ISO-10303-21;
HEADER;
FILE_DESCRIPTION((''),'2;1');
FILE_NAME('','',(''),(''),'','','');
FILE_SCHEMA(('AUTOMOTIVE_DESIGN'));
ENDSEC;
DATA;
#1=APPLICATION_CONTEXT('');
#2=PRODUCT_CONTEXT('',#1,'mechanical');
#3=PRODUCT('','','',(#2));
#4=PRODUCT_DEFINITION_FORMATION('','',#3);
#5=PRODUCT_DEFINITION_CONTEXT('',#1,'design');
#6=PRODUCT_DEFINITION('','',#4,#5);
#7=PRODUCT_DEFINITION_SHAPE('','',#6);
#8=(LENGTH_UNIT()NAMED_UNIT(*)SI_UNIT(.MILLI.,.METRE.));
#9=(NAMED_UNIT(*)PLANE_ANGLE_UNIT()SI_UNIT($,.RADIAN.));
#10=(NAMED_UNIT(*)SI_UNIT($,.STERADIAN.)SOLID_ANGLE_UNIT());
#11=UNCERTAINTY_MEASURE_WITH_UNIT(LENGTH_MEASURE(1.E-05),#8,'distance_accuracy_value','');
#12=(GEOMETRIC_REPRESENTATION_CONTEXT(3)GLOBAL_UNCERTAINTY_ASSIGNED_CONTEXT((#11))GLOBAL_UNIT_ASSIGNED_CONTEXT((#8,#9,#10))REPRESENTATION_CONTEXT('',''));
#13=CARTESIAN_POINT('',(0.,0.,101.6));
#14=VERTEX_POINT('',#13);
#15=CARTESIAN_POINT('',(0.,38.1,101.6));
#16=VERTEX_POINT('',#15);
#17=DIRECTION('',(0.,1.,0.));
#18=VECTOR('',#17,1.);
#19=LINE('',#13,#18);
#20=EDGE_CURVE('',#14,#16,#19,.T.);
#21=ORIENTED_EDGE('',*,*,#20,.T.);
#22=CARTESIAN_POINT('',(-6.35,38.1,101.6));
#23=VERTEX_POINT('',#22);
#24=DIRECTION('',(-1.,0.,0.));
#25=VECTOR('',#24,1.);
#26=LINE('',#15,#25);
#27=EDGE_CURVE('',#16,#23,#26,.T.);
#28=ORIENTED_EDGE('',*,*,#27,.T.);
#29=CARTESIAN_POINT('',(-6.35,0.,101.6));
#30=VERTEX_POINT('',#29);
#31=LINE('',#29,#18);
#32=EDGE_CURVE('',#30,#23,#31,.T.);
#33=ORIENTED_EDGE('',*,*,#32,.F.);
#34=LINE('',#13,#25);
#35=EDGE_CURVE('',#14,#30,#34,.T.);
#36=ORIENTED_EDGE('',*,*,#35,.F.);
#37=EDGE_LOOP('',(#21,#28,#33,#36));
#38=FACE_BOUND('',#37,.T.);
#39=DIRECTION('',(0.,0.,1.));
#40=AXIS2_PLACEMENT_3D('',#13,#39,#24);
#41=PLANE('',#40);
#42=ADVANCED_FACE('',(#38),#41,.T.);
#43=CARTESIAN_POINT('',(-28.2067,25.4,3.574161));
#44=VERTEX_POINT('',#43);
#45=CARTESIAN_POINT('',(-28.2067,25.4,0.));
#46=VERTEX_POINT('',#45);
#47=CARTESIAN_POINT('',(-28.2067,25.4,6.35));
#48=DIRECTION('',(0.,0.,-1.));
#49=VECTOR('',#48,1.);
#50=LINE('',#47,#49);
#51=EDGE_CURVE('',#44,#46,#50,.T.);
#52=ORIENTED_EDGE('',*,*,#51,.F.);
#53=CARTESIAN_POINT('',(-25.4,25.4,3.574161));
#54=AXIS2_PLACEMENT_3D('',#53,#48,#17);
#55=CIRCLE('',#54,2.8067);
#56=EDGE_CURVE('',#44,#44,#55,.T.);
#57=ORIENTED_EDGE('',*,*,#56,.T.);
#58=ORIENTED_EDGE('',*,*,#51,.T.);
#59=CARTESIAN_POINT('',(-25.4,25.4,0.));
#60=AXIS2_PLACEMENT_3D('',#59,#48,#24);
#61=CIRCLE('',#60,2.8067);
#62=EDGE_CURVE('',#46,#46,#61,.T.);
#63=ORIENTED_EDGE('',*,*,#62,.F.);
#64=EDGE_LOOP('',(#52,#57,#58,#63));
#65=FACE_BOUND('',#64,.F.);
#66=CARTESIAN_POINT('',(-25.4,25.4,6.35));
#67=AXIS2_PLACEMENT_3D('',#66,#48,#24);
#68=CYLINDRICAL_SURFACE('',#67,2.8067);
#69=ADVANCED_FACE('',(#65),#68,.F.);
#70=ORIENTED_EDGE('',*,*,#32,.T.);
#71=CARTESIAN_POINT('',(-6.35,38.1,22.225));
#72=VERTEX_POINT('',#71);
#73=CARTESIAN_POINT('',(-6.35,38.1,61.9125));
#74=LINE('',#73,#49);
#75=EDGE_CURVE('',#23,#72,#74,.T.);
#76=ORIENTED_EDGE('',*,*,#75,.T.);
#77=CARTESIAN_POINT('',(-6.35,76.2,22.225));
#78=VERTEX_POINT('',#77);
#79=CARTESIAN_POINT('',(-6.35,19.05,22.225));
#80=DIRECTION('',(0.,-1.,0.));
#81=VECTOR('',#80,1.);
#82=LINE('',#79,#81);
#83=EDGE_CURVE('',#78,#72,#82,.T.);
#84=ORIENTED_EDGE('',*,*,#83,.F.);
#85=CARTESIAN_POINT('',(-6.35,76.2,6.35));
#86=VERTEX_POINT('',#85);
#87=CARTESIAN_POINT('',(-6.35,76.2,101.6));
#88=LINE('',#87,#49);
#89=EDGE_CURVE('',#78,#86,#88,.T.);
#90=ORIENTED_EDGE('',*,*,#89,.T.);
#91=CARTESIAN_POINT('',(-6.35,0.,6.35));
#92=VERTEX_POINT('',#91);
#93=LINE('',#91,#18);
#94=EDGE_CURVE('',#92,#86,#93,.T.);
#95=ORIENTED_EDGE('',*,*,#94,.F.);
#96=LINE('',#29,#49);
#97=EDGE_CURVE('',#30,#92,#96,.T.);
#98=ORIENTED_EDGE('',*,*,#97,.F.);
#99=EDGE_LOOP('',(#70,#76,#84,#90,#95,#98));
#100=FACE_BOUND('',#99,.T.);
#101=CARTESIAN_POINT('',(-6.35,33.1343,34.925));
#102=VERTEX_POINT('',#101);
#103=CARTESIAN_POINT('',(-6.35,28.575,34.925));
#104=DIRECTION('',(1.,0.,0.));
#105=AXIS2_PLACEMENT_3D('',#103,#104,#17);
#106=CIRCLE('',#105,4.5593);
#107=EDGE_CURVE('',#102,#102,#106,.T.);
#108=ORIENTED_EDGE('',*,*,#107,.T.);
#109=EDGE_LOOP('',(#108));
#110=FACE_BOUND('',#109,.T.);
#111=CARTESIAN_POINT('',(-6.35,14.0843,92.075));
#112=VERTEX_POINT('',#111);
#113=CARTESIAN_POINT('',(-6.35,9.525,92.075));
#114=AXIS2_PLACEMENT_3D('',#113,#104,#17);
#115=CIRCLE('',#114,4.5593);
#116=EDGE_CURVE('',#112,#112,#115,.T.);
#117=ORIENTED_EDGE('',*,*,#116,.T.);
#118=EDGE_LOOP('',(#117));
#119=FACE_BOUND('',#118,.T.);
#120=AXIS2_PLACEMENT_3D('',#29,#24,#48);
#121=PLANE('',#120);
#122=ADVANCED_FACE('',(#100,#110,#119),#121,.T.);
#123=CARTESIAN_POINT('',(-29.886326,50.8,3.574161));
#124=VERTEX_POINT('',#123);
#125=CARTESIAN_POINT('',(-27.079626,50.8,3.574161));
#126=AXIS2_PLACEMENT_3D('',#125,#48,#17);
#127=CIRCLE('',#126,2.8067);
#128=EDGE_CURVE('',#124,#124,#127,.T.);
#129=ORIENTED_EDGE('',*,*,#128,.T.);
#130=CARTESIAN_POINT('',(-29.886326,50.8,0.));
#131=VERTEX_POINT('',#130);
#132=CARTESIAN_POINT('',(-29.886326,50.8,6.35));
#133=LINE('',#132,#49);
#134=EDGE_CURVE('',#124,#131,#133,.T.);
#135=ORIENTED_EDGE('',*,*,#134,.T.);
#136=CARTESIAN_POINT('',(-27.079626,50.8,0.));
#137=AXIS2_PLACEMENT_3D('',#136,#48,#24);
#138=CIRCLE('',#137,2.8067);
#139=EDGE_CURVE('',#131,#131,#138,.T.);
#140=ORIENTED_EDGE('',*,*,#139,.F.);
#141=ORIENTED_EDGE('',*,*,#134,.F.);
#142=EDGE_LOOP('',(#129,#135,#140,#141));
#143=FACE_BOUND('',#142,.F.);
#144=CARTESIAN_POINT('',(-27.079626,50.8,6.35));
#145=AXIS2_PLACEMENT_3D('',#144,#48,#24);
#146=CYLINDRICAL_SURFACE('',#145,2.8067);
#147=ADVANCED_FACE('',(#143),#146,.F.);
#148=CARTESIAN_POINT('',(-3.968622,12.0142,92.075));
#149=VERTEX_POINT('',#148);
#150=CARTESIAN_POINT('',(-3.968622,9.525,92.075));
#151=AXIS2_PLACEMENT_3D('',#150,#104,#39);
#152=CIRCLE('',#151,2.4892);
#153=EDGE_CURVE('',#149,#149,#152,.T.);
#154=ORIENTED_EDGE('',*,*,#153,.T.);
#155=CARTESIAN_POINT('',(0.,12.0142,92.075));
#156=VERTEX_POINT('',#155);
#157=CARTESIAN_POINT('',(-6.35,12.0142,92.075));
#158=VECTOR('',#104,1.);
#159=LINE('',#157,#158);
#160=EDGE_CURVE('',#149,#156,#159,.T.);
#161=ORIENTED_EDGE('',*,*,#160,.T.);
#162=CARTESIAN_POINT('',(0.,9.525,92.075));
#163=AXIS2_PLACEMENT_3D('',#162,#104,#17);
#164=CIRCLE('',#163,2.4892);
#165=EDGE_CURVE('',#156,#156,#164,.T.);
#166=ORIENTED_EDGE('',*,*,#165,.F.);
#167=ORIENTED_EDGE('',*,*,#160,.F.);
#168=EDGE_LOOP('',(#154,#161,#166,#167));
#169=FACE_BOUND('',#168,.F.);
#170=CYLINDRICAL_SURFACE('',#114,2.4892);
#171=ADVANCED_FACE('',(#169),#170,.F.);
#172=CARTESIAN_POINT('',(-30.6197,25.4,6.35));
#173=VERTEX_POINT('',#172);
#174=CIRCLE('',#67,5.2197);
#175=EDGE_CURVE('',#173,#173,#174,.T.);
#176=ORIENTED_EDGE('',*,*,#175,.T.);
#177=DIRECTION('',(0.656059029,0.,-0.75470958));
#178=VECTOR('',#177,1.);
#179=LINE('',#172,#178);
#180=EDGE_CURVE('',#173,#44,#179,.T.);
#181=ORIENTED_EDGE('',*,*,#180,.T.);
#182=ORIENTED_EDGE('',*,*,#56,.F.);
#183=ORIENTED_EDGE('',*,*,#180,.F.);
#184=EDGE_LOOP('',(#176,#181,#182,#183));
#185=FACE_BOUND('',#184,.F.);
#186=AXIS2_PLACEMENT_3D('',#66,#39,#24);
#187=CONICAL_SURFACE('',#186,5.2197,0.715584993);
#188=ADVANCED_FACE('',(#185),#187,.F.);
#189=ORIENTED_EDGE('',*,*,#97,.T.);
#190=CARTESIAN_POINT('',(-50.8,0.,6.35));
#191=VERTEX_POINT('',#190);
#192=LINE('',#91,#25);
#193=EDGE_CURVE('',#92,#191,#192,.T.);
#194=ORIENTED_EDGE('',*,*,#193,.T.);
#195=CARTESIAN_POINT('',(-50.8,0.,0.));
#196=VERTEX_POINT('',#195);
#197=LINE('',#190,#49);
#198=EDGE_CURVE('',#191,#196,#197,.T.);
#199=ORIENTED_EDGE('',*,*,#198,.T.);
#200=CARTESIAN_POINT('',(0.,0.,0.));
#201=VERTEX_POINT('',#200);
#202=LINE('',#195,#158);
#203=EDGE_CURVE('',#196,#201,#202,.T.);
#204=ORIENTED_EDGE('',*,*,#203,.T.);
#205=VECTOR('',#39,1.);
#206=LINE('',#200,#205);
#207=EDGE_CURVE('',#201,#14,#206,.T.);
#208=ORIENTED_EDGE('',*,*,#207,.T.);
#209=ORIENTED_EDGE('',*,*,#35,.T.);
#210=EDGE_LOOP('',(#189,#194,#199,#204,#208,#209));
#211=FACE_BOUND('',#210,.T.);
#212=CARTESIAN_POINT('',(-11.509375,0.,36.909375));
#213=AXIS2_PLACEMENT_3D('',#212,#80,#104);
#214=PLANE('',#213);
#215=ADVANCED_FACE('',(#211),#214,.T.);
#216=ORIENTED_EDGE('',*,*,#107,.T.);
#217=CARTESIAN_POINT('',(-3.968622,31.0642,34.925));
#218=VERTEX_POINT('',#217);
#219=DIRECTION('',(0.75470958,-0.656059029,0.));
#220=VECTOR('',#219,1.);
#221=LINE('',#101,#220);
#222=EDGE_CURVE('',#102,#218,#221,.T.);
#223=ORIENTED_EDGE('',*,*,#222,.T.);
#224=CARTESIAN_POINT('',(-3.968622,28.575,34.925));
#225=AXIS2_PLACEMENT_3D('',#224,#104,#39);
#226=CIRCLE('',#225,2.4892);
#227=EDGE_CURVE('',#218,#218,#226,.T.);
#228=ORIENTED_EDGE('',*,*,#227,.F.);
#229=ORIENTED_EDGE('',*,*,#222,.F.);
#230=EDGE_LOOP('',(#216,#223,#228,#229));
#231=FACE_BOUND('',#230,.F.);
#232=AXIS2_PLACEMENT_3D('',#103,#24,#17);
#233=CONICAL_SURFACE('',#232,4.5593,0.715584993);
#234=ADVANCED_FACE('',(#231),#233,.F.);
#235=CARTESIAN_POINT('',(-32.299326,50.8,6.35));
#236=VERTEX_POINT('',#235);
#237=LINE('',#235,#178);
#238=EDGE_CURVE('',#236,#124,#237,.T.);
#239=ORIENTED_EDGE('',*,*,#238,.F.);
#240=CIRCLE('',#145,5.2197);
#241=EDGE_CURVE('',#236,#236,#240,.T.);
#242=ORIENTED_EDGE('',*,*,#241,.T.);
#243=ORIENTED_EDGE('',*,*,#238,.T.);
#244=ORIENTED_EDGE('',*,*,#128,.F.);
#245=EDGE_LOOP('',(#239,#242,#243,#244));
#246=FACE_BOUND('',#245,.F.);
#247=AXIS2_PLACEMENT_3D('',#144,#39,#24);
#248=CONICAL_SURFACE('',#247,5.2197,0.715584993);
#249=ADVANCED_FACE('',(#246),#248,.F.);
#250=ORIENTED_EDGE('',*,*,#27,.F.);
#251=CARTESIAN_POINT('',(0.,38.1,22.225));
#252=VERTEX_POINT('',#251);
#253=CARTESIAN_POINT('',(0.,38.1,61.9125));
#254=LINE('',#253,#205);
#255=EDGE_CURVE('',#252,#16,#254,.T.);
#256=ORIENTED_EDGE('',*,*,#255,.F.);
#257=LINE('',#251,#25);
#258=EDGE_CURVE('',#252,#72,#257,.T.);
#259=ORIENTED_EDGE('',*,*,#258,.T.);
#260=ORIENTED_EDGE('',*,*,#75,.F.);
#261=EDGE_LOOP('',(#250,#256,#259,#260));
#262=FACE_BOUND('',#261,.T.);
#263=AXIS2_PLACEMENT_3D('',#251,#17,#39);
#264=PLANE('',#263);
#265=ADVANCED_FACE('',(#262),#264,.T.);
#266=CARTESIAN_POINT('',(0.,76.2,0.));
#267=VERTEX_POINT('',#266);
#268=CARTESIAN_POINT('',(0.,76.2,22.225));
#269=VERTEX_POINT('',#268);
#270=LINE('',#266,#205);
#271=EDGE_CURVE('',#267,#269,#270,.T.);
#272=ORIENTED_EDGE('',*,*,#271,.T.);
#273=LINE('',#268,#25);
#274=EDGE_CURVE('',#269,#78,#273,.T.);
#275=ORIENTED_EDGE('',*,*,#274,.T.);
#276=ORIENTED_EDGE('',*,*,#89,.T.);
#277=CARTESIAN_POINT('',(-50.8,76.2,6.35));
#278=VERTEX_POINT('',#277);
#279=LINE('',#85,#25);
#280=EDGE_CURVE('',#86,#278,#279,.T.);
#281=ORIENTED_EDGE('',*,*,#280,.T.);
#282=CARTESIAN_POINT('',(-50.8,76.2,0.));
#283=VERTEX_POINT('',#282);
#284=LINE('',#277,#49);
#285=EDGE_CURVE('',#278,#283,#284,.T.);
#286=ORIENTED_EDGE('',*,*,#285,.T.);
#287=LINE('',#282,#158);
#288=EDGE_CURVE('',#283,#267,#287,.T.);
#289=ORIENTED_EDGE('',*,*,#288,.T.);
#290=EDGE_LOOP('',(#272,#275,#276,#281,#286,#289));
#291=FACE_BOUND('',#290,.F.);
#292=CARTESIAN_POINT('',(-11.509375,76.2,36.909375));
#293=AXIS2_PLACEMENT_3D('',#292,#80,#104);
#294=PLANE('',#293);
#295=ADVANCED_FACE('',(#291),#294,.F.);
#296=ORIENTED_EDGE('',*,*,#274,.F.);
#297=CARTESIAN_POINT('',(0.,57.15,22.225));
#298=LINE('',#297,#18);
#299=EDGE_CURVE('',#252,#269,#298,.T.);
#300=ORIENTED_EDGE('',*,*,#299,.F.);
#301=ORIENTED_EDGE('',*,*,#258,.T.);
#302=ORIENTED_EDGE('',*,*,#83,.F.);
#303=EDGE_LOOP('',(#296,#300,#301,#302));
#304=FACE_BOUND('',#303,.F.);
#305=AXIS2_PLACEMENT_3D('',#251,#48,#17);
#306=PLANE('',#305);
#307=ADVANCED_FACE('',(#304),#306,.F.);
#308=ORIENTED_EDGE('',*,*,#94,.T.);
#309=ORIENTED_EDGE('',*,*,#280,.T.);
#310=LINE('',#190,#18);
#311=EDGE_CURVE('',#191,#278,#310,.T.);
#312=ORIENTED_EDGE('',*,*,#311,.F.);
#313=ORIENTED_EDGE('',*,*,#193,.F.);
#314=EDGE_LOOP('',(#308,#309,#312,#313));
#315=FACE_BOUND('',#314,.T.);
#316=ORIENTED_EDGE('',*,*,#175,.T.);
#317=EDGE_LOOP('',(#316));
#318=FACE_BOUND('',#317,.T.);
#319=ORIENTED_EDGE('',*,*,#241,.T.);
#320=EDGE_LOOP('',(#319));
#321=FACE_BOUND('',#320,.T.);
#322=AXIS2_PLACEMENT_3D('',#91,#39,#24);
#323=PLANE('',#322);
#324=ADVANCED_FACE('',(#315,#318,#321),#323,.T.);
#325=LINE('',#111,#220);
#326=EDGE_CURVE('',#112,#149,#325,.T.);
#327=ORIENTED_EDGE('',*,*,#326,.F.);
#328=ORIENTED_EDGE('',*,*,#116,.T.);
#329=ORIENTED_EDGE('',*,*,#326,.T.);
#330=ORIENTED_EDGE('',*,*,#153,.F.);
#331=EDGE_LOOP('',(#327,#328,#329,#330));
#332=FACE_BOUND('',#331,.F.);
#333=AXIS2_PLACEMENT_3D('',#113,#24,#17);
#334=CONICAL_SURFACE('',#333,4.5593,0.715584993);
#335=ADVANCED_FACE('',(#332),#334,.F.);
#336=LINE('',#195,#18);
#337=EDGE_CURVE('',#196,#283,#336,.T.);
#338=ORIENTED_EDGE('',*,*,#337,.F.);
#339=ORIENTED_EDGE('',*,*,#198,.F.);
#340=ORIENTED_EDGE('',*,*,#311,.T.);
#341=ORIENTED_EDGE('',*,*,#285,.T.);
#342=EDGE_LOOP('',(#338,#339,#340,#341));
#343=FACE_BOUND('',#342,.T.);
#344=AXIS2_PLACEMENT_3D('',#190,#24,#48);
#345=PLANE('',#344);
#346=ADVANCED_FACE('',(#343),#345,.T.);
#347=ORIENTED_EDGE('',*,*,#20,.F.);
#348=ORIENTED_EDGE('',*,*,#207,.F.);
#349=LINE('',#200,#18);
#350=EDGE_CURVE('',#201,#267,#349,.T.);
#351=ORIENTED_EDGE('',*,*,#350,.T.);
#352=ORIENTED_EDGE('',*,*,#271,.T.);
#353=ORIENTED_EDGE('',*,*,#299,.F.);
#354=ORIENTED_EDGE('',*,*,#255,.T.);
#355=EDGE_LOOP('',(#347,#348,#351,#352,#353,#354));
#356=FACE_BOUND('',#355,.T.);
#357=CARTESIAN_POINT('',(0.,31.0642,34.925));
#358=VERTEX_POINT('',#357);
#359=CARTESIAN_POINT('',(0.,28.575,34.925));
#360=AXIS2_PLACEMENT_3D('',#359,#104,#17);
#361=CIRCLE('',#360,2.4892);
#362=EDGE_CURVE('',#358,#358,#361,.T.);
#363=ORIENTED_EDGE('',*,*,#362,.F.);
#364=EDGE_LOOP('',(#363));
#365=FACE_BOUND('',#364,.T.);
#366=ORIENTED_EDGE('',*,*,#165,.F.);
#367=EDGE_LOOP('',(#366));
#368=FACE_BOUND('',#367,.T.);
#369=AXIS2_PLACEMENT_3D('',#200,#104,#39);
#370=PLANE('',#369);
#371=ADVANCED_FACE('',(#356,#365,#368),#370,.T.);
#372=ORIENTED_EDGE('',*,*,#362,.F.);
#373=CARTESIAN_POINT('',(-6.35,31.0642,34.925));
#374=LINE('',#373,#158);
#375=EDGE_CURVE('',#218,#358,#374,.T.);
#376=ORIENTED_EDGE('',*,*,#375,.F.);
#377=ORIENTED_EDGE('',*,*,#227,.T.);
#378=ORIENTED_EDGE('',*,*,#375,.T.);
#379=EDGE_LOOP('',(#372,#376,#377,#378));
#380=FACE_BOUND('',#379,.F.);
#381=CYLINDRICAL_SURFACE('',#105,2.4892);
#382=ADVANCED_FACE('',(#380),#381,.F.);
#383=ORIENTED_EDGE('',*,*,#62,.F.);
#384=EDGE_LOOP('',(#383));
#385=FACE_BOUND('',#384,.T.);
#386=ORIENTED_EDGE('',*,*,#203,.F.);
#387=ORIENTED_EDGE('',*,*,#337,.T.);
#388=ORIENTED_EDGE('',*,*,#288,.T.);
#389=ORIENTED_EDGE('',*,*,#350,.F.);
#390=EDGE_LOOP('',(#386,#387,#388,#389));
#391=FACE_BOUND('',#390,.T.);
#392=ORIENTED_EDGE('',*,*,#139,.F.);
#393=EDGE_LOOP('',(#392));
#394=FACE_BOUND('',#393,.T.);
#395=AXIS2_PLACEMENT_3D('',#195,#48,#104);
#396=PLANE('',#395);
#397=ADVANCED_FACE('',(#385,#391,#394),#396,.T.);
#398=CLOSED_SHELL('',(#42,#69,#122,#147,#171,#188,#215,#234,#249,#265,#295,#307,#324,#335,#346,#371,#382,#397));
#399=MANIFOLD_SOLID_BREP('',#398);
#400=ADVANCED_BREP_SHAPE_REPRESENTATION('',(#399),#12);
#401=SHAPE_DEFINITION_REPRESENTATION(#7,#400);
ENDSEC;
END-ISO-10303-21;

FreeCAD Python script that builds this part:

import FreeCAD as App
import Part
import Sketcher

V = App.Vector
Q = App.Units.Quantity

doc = App.newDocument("Part")
body = doc.addObject("PartDesign::Body", "Body")

sketch1 = body.newObject("Sketcher::SketchObject", "Sketch")
sketch1.AttachmentSupport = (doc.getObject("XZ_Plane"), [""])
sketch1.MapMode = "FlatFace"
sketch1.addGeometry([
    Part.LineSegment(V(-51, 0, 0), V(0, 0, 0)),
    Part.LineSegment(V(0, 0, 0), V(0, 102, 0)),
    Part.LineSegment(V(0, 102, 0), V(-6, 102, 0)),
    Part.LineSegment(V(-6, 102, 0), V(-6, 6, 0)),
    Part.LineSegment(V(-6, 6, 0), V(-51, 6, 0)),
    Part.LineSegment(V(-51, 6, 0), V(-51, 0, 0)),
], False)
sketch1.addConstraint([
    Sketcher.Constraint("Coincident", 0, 2, 1, 1),
    Sketcher.Constraint("Coincident", 1, 2, 2, 1),
    Sketcher.Constraint("Coincident", 2, 2, 3, 1),
    Sketcher.Constraint("Coincident", 3, 2, 4, 1),
    Sketcher.Constraint("Coincident", 4, 2, 5, 1),
    Sketcher.Constraint("Coincident", 5, 2, 0, 1),
    Sketcher.Constraint("Horizontal", 0),
    Sketcher.Constraint("Vertical", 1),
    Sketcher.Constraint("Horizontal", 2),
    Sketcher.Constraint("Vertical", 3),
    Sketcher.Constraint("Horizontal", 4),
    Sketcher.Constraint("Vertical", 5),
    Sketcher.Constraint("Coincident", 0, 2, -1, 1),
    Sketcher.Constraint("Equal", 2, 5),
    Sketcher.Constraint("DistanceX", 0, 1, 0, 2, Q("2 in")),
    Sketcher.Constraint("DistanceY", 1, 1, 1, 2, Q("4 in")),
    Sketcher.Constraint("DistanceX", 2, 2, 2, 1, Q("0.25 in")),
])
pad1 = body.newObject("PartDesign::Pad", "Pad")
pad1.Profile = sketch1
pad1.Length = Q("3 in")
pad1.Reversed = True

sketch2 = body.newObject("Sketcher::SketchObject", "Sketch001")
sketch2.AttachmentSupport = (doc.getObject("YZ_Plane"), [""])
sketch2.MapMode = "FlatFace"
sketch2.AttachmentOffset = App.Placement(V(0, 0, -0.25 * 25.4), App.Rotation())
sketch2.addGeometry([
    Part.Circle(V(9.5, 92.1, 0), V(0, 0, 1), 2.5),
    Part.Circle(V(28.6, 34.9, 0), V(0, 0, 1), 2.5),
], False)
sketch2.addConstraint([
    Sketcher.Constraint("Equal", 0, 1),
    Sketcher.Constraint("Diameter", 0, Q("0.196 in")),
    Sketcher.Constraint("DistanceX", 0, 3, 1, 3, Q("0.75 in")),
    Sketcher.Constraint("DistanceY", 1, 3, 0, 3, Q("2.25 in")),
    Sketcher.Constraint("DistanceX", -1, 1, 0, 3, Q("0.375 in")),
    Sketcher.Constraint("DistanceY", -1, 1, 0, 3, Q("3.625 in")),
])
doc.recompute()
hole = body.newObject("PartDesign::Hole", "Hole")
hole.Profile = sketch2
hole.ThreadType = "None"
hole.Diameter = Q("0.196 in")
hole.DepthType = "ThroughAll"
hole.HoleCutType = "Countersink"
hole.HoleCutDiameter = Q("0.359 in")
hole.HoleCutCountersinkAngle = 82
hole.Reversed = True

sketch3 = body.newObject("Sketcher::SketchObject", "Sketch002")
sketch3.AttachmentSupport = (doc.getObject("XY_Plane"), [""])
sketch3.MapMode = "FlatFace"
sketch3.AttachmentOffset = App.Placement(V(0, 0, 0.25 * 25.4), App.Rotation())
sketch3.addGeometry([
    Part.Circle(V(-25.4, 25.4, 0), V(0, 0, 1), 2.8),
    Part.Circle(V(-27.1, 50.8, 0), V(0, 0, 1), 2.8),
], False)
sketch3.addConstraint([
    Sketcher.Constraint("Equal", 0, 1),
    Sketcher.Constraint("Diameter", 0, Q("0.221 in")),
    Sketcher.Constraint("DistanceX", 0, 3, -1, 1, Q("1 in")),
    Sketcher.Constraint("DistanceY", -1, 1, 0, 3, Q("1 in")),
    Sketcher.Constraint("DistanceY", -1, 1, 1, 3, Q("2 in")),
    Sketcher.Constraint("DistanceX", 1, 3, -1, 1, Q("27.079626 mm")),
])
doc.recompute()
hole2 = body.newObject("PartDesign::Hole", "Hole001")
hole2.Profile = sketch3
hole2.ThreadType = "None"
hole2.Diameter = Q("0.221 in")
hole2.DepthType = "ThroughAll"
hole2.HoleCutType = "Countersink"
hole2.HoleCutDiameter = Q("0.411 in")
hole2.HoleCutCountersinkAngle = 82

sketch4 = body.newObject("Sketcher::SketchObject", "Sketch003")
sketch4.AttachmentSupport = (doc.getObject("YZ_Plane"), [""])
sketch4.MapMode = "FlatFace"
sketch4.addGeometry([
    Part.LineSegment(V(38, 102, 0), V(38, 22, 0)),
    Part.LineSegment(V(38, 22, 0), V(76, 22, 0)),
    Part.LineSegment(V(76, 22, 0), V(76, 102, 0)),
    Part.LineSegment(V(76, 102, 0), V(38, 102, 0)),
], False)
sketch4.addConstraint([
    Sketcher.Constraint("Coincident", 0, 2, 1, 1),
    Sketcher.Constraint("Coincident", 1, 2, 2, 1),
    Sketcher.Constraint("Coincident", 2, 2, 3, 1),
    Sketcher.Constraint("Coincident", 3, 2, 0, 1),
    Sketcher.Constraint("Vertical", 0),
    Sketcher.Constraint("Horizontal", 1),
    Sketcher.Constraint("Vertical", 2),
    Sketcher.Constraint("Horizontal", 3),
    Sketcher.Constraint("DistanceX", 1, 1, 1, 2, Q("1.5 in")),
    Sketcher.Constraint("DistanceX", -1, 1, 1, 2, Q("3 in")),
    Sketcher.Constraint("DistanceY", -1, 1, 2, 2, Q("4 in")),
    Sketcher.Constraint("DistanceY", 0, 2, 0, 1, Q("3.125 in")),
])
pocket1 = body.newObject("PartDesign::Pocket", "Pocket")
pocket1.Profile = sketch4
pocket1.Type = "ThroughAll"

doc.recompute()
